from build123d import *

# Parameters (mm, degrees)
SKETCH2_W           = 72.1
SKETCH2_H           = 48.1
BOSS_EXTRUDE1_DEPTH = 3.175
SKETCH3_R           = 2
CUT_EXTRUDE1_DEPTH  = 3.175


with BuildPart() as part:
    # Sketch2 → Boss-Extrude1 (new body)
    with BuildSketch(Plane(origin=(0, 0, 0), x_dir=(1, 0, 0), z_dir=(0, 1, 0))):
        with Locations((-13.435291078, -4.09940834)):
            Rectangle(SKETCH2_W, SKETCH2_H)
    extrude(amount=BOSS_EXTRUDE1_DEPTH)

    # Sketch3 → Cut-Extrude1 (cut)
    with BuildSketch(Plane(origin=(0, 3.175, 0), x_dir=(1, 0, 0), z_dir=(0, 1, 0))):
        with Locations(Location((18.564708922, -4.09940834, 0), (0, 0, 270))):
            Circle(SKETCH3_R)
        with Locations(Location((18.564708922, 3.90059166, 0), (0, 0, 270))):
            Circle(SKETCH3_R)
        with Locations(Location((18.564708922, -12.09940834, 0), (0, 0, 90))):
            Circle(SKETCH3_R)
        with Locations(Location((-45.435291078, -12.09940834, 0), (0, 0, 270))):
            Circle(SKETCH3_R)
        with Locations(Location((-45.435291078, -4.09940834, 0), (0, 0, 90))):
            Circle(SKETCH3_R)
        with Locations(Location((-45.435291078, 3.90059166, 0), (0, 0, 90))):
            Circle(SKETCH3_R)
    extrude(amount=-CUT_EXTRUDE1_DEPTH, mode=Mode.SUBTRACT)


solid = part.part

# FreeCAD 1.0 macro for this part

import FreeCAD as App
import Part
import Sketcher

V = App.Vector
Q = App.Units.Quantity

doc = App.newDocument("Part")
body = doc.addObject("PartDesign::Body", "Body")

sketch1 = body.newObject("Sketcher::SketchObject", "Sketch")
sketch1.AttachmentSupport = (doc.getObject("XZ_Plane"), [""])
sketch1.MapMode = "FlatFace"
sketch1.addGeometry([
    Part.LineSegment(V(-49, -20, 0), V(-49, 28, 0)),
    Part.LineSegment(V(-49, 28, 0), V(23, 28, 0)),
    Part.LineSegment(V(23, 28, 0), V(23, -20, 0)),
    Part.LineSegment(V(23, -20, 0), V(-49, -20, 0)),
], False)
sketch1.addConstraint([
    Sketcher.Constraint("Coincident", 0, 2, 1, 1),
    Sketcher.Constraint("Coincident", 1, 2, 2, 1),
    Sketcher.Constraint("Coincident", 2, 2, 3, 1),
    Sketcher.Constraint("Coincident", 3, 2, 0, 1),
    Sketcher.Constraint("Vertical", 0),
    Sketcher.Constraint("Horizontal", 1),
    Sketcher.Constraint("Vertical", 2),
    Sketcher.Constraint("Horizontal", 3),
    Sketcher.Constraint("DistanceX", 1, 1, 1, 2, Q("72.1 mm")),
    Sketcher.Constraint("DistanceY", 0, 1, 0, 2, Q("48.1 mm")),
    Sketcher.Constraint("DistanceX", 0, 2, -1, 1, Q("49.485291 mm")),
    Sketcher.Constraint("DistanceY", -1, 1, 0, 2, Q("28.149408 mm")),
])
pad1 = body.newObject("PartDesign::Pad", "Pad")
pad1.Profile = sketch1
pad1.Length = 3.175
pad1.Reversed = True

sketch2 = body.newObject("Sketcher::SketchObject", "Sketch001")
sketch2.AttachmentSupport = (doc.getObject("XZ_Plane"), [""])
sketch2.MapMode = "FlatFace"
sketch2.AttachmentOffset = App.Placement(V(0, 0, -3.175), App.Rotation())
sketch2.addGeometry([
    Part.Circle(V(18.6, 4.1, 0), V(0, 0, 1), 2),
    Part.Circle(V(18.6, -3.9, 0), V(0, 0, 1), 2),
    Part.Circle(V(18.6, 12.1, 0), V(0, 0, 1), 2),
    Part.Circle(V(-45.4, 12.1, 0), V(0, 0, 1), 2),
    Part.Circle(V(-45.4, 4.1, 0), V(0, 0, 1), 2),
    Part.Circle(V(-45.4, -3.9, 0), V(0, 0, 1), 2),
], False)
sketch2.addConstraint([
    Sketcher.Constraint("Equal", 0, 1),
    Sketcher.Constraint("Equal", 1, 2),
    Sketcher.Constraint("Equal", 2, 3),
    Sketcher.Constraint("Equal", 3, 4),
    Sketcher.Constraint("Equal", 4, 5),
    Sketcher.Constraint("Horizontal", 2, 3, 3, 3),
    Sketcher.Constraint("Horizontal", 0, 3, 4, 3),
    Sketcher.Constraint("Horizontal", 1, 3, 5, 3),
    Sketcher.Constraint("Vertical", 0, 3, 1, 3),
    Sketcher.Constraint("Vertical", 1, 3, 2, 3),
    Sketcher.Constraint("Vertical", 3, 3, 4, 3),
    Sketcher.Constraint("Vertical", 4, 3, 5, 3),
    Sketcher.Constraint("Diameter", 0, Q("4 mm")),
    Sketcher.Constraint("DistanceY", 1, 3, 0, 3, Q("8 mm")),
    Sketcher.Constraint("DistanceY", 0, 3, 2, 3, Q("8 mm")),
    Sketcher.Constraint("DistanceX", 3, 3, 2, 3, Q("64 mm")),
    Sketcher.Constraint("DistanceX", -1, 1, 0, 3, Q("18.564709 mm")),
    Sketcher.Constraint("DistanceY", -1, 1, 0, 3, Q("4.099408 mm")),
])
pocket1 = body.newObject("PartDesign::Pocket", "Pocket")
pocket1.Profile = sketch2
pocket1.Length = 3.175
pocket1.Reversed = True

doc.recompute()
